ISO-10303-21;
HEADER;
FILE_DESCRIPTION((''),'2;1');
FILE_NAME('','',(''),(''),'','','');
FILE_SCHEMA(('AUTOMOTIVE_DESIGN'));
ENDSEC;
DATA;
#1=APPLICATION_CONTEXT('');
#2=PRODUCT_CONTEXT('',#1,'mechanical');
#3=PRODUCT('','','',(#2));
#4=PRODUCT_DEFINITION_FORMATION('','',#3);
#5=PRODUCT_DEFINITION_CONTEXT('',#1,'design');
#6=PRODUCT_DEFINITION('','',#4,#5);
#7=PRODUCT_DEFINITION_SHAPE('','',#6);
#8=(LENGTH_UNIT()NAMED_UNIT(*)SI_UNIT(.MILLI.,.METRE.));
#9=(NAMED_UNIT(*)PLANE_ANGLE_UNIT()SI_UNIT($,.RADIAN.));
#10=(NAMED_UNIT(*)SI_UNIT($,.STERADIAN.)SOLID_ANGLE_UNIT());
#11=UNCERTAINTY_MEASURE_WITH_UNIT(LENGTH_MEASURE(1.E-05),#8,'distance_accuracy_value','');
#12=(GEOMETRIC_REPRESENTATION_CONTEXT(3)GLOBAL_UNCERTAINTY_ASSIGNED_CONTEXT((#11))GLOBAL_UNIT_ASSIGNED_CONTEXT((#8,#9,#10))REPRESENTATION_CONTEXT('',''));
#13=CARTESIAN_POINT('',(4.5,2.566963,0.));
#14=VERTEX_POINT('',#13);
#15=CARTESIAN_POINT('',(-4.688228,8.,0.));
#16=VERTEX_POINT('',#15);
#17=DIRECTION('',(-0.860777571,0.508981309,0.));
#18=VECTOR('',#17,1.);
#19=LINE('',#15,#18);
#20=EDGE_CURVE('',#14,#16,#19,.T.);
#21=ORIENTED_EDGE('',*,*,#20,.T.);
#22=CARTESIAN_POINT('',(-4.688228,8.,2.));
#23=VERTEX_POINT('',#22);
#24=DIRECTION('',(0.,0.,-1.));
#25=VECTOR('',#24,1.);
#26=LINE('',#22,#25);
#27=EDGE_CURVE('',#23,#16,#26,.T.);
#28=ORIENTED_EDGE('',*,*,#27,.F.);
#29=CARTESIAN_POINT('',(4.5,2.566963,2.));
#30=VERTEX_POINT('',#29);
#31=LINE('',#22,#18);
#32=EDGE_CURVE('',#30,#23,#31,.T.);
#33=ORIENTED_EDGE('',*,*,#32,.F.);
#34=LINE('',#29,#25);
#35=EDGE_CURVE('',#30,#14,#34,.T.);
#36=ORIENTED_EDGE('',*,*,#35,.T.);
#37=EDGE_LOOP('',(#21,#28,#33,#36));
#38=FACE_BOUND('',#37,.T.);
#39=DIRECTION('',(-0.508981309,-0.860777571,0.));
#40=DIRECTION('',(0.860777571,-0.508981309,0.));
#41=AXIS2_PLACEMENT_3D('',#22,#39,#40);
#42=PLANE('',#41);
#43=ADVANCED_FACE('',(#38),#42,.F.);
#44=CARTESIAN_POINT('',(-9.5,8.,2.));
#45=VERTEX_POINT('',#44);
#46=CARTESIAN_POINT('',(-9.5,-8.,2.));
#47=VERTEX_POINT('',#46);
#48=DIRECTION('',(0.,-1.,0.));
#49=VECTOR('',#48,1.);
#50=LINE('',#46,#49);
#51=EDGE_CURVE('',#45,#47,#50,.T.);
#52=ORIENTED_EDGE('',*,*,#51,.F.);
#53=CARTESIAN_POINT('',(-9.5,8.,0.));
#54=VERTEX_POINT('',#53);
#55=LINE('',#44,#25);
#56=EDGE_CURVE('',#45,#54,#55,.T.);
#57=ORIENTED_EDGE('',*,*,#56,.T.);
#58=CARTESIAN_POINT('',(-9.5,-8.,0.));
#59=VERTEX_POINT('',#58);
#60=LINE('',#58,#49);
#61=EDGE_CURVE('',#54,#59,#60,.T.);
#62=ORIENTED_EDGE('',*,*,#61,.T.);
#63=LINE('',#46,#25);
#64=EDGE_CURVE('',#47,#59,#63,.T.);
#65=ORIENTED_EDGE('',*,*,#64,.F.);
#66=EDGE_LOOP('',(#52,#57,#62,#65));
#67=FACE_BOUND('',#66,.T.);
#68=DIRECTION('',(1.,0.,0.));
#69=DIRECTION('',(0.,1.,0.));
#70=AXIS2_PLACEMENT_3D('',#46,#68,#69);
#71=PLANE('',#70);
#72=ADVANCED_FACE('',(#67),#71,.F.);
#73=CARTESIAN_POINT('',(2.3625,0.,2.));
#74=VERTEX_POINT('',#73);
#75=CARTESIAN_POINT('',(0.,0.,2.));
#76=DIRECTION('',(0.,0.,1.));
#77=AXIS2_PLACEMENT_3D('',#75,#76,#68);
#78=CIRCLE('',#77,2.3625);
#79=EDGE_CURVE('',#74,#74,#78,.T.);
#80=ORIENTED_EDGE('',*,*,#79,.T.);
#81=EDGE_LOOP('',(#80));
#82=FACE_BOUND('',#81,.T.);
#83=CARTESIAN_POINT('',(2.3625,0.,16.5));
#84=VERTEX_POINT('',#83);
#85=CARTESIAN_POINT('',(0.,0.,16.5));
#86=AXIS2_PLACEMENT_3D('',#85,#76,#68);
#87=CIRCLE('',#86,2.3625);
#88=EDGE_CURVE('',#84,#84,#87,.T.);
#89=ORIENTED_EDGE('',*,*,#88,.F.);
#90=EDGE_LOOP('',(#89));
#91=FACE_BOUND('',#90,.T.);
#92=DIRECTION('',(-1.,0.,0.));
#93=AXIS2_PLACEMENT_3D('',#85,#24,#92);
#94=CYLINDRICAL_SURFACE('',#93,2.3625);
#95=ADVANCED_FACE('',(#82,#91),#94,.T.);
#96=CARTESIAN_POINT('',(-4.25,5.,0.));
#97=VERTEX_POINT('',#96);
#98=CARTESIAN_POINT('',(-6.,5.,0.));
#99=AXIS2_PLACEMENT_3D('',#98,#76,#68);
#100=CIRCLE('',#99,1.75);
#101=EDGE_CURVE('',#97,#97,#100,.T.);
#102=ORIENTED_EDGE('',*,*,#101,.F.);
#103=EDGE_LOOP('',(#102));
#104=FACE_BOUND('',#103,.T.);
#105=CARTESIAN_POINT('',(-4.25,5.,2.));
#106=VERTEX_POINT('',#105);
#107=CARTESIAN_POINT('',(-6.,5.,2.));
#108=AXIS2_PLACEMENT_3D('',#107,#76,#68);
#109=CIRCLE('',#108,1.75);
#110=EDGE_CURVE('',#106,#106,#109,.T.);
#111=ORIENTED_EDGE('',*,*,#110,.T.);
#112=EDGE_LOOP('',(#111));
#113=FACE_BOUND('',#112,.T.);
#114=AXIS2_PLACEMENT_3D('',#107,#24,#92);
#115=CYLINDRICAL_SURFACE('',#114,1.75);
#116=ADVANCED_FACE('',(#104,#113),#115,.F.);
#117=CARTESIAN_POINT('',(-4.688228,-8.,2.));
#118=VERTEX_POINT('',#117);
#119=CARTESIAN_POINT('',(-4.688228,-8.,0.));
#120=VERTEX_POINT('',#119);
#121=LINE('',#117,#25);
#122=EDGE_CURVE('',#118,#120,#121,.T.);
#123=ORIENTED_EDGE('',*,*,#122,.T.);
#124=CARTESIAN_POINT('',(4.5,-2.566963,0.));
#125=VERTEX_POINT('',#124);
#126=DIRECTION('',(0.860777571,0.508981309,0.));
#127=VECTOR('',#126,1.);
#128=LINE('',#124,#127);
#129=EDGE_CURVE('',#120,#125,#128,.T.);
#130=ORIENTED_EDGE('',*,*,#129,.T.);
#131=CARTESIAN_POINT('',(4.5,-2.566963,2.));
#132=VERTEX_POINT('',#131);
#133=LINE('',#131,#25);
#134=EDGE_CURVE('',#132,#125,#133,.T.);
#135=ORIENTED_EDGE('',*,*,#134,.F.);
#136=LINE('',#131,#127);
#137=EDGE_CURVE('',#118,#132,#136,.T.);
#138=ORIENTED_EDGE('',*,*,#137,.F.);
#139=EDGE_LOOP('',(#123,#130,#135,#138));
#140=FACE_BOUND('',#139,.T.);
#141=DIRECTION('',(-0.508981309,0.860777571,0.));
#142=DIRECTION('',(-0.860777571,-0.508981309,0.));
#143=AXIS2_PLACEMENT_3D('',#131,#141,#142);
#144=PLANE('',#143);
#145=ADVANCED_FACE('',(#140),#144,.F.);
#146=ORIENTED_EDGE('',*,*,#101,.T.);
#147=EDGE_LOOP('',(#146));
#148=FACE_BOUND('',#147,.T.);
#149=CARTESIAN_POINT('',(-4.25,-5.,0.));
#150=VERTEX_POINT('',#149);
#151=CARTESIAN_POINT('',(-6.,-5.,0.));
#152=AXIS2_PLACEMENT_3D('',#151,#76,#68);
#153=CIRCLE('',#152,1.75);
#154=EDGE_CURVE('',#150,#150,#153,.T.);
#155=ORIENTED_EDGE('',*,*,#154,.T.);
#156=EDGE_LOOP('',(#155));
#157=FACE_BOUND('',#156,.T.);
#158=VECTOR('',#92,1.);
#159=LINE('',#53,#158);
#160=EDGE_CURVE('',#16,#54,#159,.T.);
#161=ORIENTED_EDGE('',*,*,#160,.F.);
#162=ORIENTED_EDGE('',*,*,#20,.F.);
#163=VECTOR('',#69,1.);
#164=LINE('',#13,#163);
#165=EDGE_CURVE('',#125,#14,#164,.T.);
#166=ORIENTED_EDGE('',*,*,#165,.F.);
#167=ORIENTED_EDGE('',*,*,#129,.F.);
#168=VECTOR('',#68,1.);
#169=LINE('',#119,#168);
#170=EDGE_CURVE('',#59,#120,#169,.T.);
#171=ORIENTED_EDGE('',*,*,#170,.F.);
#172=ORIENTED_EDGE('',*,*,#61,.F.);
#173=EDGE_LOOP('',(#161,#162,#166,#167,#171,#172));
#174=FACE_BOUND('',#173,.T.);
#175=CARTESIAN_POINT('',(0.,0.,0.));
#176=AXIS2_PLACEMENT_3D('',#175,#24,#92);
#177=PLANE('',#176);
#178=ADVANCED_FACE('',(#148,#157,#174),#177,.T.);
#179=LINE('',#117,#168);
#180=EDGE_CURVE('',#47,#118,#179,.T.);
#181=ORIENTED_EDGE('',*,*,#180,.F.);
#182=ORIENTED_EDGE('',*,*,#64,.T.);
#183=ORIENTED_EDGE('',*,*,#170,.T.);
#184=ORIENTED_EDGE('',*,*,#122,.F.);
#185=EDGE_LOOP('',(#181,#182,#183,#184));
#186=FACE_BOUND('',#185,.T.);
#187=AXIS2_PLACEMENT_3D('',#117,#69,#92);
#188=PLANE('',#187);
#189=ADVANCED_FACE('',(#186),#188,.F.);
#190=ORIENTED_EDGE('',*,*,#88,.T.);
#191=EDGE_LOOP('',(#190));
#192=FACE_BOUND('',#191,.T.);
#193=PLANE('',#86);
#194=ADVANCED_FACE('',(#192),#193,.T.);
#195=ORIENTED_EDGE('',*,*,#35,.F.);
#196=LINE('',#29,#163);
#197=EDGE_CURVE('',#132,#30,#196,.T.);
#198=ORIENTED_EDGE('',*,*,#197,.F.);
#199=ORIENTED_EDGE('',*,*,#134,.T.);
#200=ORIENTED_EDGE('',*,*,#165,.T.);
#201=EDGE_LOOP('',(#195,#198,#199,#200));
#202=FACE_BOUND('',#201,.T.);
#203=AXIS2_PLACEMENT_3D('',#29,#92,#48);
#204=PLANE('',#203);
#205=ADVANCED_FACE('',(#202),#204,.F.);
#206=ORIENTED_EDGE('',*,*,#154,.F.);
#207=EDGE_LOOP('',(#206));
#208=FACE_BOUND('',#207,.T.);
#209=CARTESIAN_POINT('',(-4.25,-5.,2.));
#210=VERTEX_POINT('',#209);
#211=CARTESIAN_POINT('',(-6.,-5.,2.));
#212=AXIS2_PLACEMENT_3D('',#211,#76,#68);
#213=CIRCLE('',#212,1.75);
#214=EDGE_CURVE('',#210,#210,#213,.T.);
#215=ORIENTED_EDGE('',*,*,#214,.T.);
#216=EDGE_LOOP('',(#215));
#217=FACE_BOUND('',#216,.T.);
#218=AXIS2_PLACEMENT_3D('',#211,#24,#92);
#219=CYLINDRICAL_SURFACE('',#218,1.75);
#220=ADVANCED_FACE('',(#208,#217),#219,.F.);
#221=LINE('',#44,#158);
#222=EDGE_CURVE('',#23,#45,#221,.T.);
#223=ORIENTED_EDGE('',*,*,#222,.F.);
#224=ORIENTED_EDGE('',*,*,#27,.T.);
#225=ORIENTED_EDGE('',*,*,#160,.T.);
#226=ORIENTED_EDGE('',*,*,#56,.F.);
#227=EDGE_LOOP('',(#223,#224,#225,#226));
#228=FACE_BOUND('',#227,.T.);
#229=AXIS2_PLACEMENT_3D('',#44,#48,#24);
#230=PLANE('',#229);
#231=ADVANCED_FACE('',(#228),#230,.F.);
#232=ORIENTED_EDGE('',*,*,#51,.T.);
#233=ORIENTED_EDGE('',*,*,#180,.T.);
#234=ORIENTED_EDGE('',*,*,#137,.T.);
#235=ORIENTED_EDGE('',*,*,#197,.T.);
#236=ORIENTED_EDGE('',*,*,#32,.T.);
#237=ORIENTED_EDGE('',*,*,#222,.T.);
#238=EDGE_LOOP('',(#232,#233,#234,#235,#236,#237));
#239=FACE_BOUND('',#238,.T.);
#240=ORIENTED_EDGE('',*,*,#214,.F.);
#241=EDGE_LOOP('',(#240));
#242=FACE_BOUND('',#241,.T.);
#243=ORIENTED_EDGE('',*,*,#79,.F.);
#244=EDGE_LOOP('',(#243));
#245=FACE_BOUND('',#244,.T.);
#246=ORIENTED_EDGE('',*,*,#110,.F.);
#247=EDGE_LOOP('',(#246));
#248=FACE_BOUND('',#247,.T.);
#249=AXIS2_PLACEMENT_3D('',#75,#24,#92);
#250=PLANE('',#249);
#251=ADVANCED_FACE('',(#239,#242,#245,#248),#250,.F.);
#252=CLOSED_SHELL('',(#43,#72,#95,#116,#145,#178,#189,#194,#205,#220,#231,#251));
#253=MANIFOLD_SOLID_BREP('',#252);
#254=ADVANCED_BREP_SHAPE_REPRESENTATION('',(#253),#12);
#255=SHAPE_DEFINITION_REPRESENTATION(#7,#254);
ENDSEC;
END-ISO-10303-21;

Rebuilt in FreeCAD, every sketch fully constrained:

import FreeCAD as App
import Part
import Sketcher

V = App.Vector

doc = App.newDocument("Part")
body = doc.addObject("PartDesign::Body", "Body")

# Sketch on XY plane
sketch1 = body.newObject("Sketcher::SketchObject", "Sketch")
sketch1.AttachmentSupport = (doc.getObject("XY_Plane"), [""])
sketch1.MapMode = "FlatFace"
sketch1.addGeometry([
    Part.LineSegment(V(-9.5, 8, 0), V(-9.5, -8, 0)),  # 0
    Part.LineSegment(V(-9.5, -8, 0), V(-4.7, -8, 0)),  # 1
    Part.LineSegment(V(-4.7, -8, 0), V(4.5, -2.6, 0)),  # 2
    Part.LineSegment(V(4.5, -2.6, 0), V(4.5, 2.6, 0)),  # 3
    Part.LineSegment(V(4.5, 2.6, 0), V(-4.7, 8, 0)),  # 4
    Part.LineSegment(V(-4.7, 8, 0), V(-9.5, 8, 0)),  # 5
    Part.Circle(V(-6, -5, 0), V(0, 0, 1), 1.8),  # 6
    Part.Circle(V(0, 0, 0), V(0, 0, 1), 2.4),  # 7
    Part.Circle(V(-6, 5, 0), V(0, 0, 1), 1.8),  # 8
], False)
sketch1.addConstraint([
    Sketcher.Constraint("Coincident", 0, 2, 1, 1),
    Sketcher.Constraint("Coincident", 1, 2, 2, 1),
    Sketcher.Constraint("Coincident", 2, 2, 3, 1),
    Sketcher.Constraint("Coincident", 3, 2, 4, 1),
    Sketcher.Constraint("Coincident", 4, 2, 5, 1),
    Sketcher.Constraint("Coincident", 5, 2, 0, 1),
    Sketcher.Constraint("Vertical", 0),
    Sketcher.Constraint("Horizontal", 1),
    Sketcher.Constraint("Vertical", 3),
    Sketcher.Constraint("Horizontal", 5),
    Sketcher.Constraint("Coincident", 7, 3, -1, 1),
    Sketcher.Constraint("Equal", 6, 8),
    Sketcher.Constraint("Symmetric", 6, 3, 8, 3, -1),
    Sketcher.Constraint("Symmetric", 1, 2, 4, 2, -1),
    Sketcher.Constraint("Equal", 2, 4),
    Sketcher.Constraint("Diameter", 6, 3.5),
    Sketcher.Constraint("DistanceY", 0, 2, 0, 1, 16.0),
    Sketcher.Constraint("Diameter", 7, 4.725),
    Sketcher.Constraint("DistanceX", 6, 3, -1, 1, 6.0),
    Sketcher.Constraint("DistanceY", 6, 3, -1, 1, 5.0),
    Sketcher.Constraint("DistanceX", 0, 2, 2, 2, 14.0),
    Sketcher.Constraint("DistanceX", 0, 2, -1, 1, 9.5),
    Sketcher.Constraint("DistanceX", 1, 1, 1, 2, 4.811772),
    Sketcher.Constraint("DistanceY", 3, 1, 3, 2, 5.133926),
])
pad1 = body.newObject("PartDesign::Pad", "Pad")
pad1.Profile = sketch1
pad1.Length = 2

# Sketch on XY plane
sketch2 = body.newObject("Sketcher::SketchObject", "Sketch001")
sketch2.AttachmentSupport = (doc.getObject("XY_Plane"), [""])
sketch2.MapMode = "FlatFace"
sketch2.addGeometry(Part.Circle(V(0, 0, 0), V(0, 0, 1), 2.4), False)
sketch2.addConstraint([
    Sketcher.Constraint("Coincident", 0, 3, -1, 1),
    Sketcher.Constraint("Diameter", 0, 4.725),
])
pad2 = body.newObject("PartDesign::Pad", "Pad001")
pad2.Profile = sketch2
pad2.Length = 16.5

doc.recompute()
